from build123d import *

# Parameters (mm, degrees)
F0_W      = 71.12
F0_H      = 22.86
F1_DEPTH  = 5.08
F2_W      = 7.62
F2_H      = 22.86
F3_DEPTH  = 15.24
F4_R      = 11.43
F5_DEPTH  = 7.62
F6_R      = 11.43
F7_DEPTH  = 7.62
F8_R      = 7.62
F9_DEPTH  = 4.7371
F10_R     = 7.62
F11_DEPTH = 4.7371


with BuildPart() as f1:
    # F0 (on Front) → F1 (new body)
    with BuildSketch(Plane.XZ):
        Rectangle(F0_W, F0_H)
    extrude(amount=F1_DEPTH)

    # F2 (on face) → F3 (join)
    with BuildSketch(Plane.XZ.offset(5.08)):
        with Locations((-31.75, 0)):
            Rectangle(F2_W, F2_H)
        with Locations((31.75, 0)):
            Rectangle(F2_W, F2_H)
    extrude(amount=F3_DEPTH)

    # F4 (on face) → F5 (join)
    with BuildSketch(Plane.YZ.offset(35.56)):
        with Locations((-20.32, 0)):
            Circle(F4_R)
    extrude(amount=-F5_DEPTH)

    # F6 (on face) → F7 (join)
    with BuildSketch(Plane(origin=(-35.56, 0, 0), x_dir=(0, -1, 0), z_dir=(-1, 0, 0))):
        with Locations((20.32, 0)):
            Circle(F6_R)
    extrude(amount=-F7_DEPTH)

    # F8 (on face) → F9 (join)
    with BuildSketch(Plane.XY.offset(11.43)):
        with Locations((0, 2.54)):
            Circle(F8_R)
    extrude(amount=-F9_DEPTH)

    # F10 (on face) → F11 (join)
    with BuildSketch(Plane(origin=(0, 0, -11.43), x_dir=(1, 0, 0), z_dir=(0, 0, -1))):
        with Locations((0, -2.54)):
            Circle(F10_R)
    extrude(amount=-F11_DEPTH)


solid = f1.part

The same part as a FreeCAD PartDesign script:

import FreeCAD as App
import Part
import Sketcher

V = App.Vector
Q = App.Units.Quantity

doc = App.newDocument("Part")
body = doc.addObject("PartDesign::Body", "Body")

sketch1 = doc.addObject("Sketcher::SketchObject", "Sketch")
body.addObject(sketch1)
sketch1.AttachmentSupport = (doc.XZ_Plane, [""])
sketch1.MapMode = "FlatFace"
sketch1.addGeometry([
    Part.LineSegment(V(-36, 11, 0), V(-36, -11, 0)),
    Part.LineSegment(V(-36, -11, 0), V(36, -11, 0)),
    Part.LineSegment(V(36, -11, 0), V(36, 11, 0)),
    Part.LineSegment(V(36, 11, 0), V(-36, 11, 0)),
], False)
sketch1.addConstraint([
    Sketcher.Constraint("Coincident", 0, 2, 1, 1),
    Sketcher.Constraint("Coincident", 1, 2, 2, 1),
    Sketcher.Constraint("Coincident", 2, 2, 3, 1),
    Sketcher.Constraint("Coincident", 3, 2, 0, 1),
    Sketcher.Constraint("Vertical", 0),
    Sketcher.Constraint("Horizontal", 1),
    Sketcher.Constraint("Vertical", 2),
    Sketcher.Constraint("Horizontal", 3),
    Sketcher.Constraint("Symmetric", 0, 2, 2, 2, -1, 1),
    Sketcher.Constraint("DistanceX", 1, 1, 1, 2, Q("2.8 in")),
    Sketcher.Constraint("DistanceY", 0, 2, 0, 1, Q("0.9 in")),
])
pad1 = doc.addObject("PartDesign::Pad", "Pad")
body.addObject(pad1)
pad1.Profile = sketch1
pad1.Length = Q("0.2 in")

sketch2 = doc.addObject("Sketcher::SketchObject", "Sketch001")
body.addObject(sketch2)
sketch2.AttachmentSupport = (doc.XZ_Plane, [""])
sketch2.MapMode = "FlatFace"
sketch2.AttachmentOffset = App.Placement(V(0, 0, 0.2 * 25.4), App.Rotation())
sketch2.addGeometry([
    Part.LineSegment(V(-36, 11, 0), V(-36, -11, 0)),
    Part.LineSegment(V(-36, -11, 0), V(-28, -11, 0)),
    Part.LineSegment(V(-28, -11, 0), V(-28, 11, 0)),
    Part.LineSegment(V(-28, 11, 0), V(-36, 11, 0)),
    Part.LineSegment(V(28, 11, 0), V(28, -11, 0)),
    Part.LineSegment(V(28, -11, 0), V(36, -11, 0)),
    Part.LineSegment(V(36, -11, 0), V(36, 11, 0)),
    Part.LineSegment(V(36, 11, 0), V(28, 11, 0)),
], False)
sketch2.addConstraint([
    Sketcher.Constraint("Coincident", 0, 2, 1, 1),
    Sketcher.Constraint("Coincident", 1, 2, 2, 1),
    Sketcher.Constraint("Coincident", 2, 2, 3, 1),
    Sketcher.Constraint("Coincident", 3, 2, 0, 1),
    Sketcher.Constraint("Coincident", 4, 2, 5, 1),
    Sketcher.Constraint("Coincident", 5, 2, 6, 1),
    Sketcher.Constraint("Coincident", 6, 2, 7, 1),
    Sketcher.Constraint("Coincident", 7, 2, 4, 1),
    Sketcher.Constraint("Vertical", 0),
    Sketcher.Constraint("Horizontal", 1),
    Sketcher.Constraint("Vertical", 2),
    Sketcher.Constraint("Horizontal", 3),
    Sketcher.Constraint("Vertical", 4),
    Sketcher.Constraint("Horizontal", 5),
    Sketcher.Constraint("Vertical", 6),
    Sketcher.Constraint("Horizontal", 7),
    Sketcher.Constraint("Symmetric", 2, 2, 4, 2, -1, 1),
    Sketcher.Constraint("Symmetric", 0, 2, 6, 2, -1, 1),
    Sketcher.Constraint("Horizontal", 1, 2, 4, 2),
    Sketcher.Constraint("DistanceX", 1, 1, 1, 2, Q("0.3 in")),
    Sketcher.Constraint("DistanceY", 0, 2, 0, 1, Q("0.9 in")),
    Sketcher.Constraint("DistanceX", 0, 2, -1, 1, Q("1.4 in")),
])
pad2 = doc.addObject("PartDesign::Pad", "Pad001")
body.addObject(pad2)
pad2.Profile = sketch2
pad2.Length = Q("0.6 in")

sketch3 = doc.addObject("Sketcher::SketchObject", "Sketch002")
body.addObject(sketch3)
sketch3.AttachmentSupport = (doc.YZ_Plane, [""])
sketch3.MapMode = "FlatFace"
sketch3.AttachmentOffset = App.Placement(V(0, 0, 1.4 * 25.4), App.Rotation())
sketch3.addGeometry(Part.Circle(V(-20, 0, 0), V(0, 0, 1), 11), False)
sketch3.addConstraint([
    Sketcher.Constraint("PointOnObject", 0, 3, -1),
    Sketcher.Constraint("Diameter", 0, Q("0.9 in")),
    Sketcher.Constraint("DistanceX", 0, 3, -1, 1, Q("0.8 in")),
])
pad3 = doc.addObject("PartDesign::Pad", "Pad002")
body.addObject(pad3)
pad3.Profile = sketch3
pad3.Length = Q("0.3 in")
pad3.Reversed = True

sketch4 = doc.addObject("Sketcher::SketchObject", "Sketch003")
body.addObject(sketch4)
sketch4.AttachmentSupport = (doc.YZ_Plane, [""])
sketch4.MapMode = "FlatFace"
sketch4.AttachmentOffset = App.Placement(V(0, 0, -1.4 * 25.4), App.Rotation())
sketch4.addGeometry(Part.Circle(V(-20, 0, 0), V(0, 0, 1), 11), False)
sketch4.addConstraint([
    Sketcher.Constraint("PointOnObject", 0, 3, -1),
    Sketcher.Constraint("Diameter", 0, Q("0.9 in")),
    Sketcher.Constraint("DistanceX", 0, 3, -1, 1, Q("0.8 in")),
])
pad4 = doc.addObject("PartDesign::Pad", "Pad003")
body.addObject(pad4)
pad4.Profile = sketch4
pad4.Length = Q("0.3 in")

sketch5 = doc.addObject("Sketcher::SketchObject", "Sketch004")
body.addObject(sketch5)
sketch5.AttachmentSupport = (doc.XY_Plane, [""])
sketch5.MapMode = "FlatFace"
sketch5.AttachmentOffset = App.Placement(V(0, 0, 0.45 * 25.4), App.Rotation())
sketch5.addGeometry(Part.Circle(V(0, 3, 0), V(0, 0, 1), 8), False)
sketch5.addConstraint([
    Sketcher.Constraint("PointOnObject", 0, 3, -2),
    Sketcher.Constraint("Diameter", 0, Q("0.6 in")),
    Sketcher.Constraint("DistanceY", -1, 1, 0, 3, Q("0.1 in")),
])
pad5 = doc.addObject("PartDesign::Pad", "Pad004")
body.addObject(pad5)
pad5.Profile = sketch5
pad5.Length = Q("0.1865 in")
pad5.Reversed = True

sketch6 = doc.addObject("Sketcher::SketchObject", "Sketch005")
body.addObject(sketch6)
sketch6.AttachmentSupport = (doc.XY_Plane, [""])
sketch6.MapMode = "FlatFace"
sketch6.AttachmentOffset = App.Placement(V(0, 0, -0.45 * 25.4), App.Rotation())
sketch6.addGeometry(Part.Circle(V(0, 3, 0), V(0, 0, 1), 8), False)
sketch6.addConstraint([
    Sketcher.Constraint("PointOnObject", 0, 3, -2),
    Sketcher.Constraint("Diameter", 0, Q("0.6 in")),
    Sketcher.Constraint("DistanceY", -1, 1, 0, 3, Q("0.1 in")),
])
pad6 = doc.addObject("PartDesign::Pad", "Pad005")
body.addObject(pad6)
pad6.Profile = sketch6
pad6.Length = Q("0.1865 in")

doc.recompute()
